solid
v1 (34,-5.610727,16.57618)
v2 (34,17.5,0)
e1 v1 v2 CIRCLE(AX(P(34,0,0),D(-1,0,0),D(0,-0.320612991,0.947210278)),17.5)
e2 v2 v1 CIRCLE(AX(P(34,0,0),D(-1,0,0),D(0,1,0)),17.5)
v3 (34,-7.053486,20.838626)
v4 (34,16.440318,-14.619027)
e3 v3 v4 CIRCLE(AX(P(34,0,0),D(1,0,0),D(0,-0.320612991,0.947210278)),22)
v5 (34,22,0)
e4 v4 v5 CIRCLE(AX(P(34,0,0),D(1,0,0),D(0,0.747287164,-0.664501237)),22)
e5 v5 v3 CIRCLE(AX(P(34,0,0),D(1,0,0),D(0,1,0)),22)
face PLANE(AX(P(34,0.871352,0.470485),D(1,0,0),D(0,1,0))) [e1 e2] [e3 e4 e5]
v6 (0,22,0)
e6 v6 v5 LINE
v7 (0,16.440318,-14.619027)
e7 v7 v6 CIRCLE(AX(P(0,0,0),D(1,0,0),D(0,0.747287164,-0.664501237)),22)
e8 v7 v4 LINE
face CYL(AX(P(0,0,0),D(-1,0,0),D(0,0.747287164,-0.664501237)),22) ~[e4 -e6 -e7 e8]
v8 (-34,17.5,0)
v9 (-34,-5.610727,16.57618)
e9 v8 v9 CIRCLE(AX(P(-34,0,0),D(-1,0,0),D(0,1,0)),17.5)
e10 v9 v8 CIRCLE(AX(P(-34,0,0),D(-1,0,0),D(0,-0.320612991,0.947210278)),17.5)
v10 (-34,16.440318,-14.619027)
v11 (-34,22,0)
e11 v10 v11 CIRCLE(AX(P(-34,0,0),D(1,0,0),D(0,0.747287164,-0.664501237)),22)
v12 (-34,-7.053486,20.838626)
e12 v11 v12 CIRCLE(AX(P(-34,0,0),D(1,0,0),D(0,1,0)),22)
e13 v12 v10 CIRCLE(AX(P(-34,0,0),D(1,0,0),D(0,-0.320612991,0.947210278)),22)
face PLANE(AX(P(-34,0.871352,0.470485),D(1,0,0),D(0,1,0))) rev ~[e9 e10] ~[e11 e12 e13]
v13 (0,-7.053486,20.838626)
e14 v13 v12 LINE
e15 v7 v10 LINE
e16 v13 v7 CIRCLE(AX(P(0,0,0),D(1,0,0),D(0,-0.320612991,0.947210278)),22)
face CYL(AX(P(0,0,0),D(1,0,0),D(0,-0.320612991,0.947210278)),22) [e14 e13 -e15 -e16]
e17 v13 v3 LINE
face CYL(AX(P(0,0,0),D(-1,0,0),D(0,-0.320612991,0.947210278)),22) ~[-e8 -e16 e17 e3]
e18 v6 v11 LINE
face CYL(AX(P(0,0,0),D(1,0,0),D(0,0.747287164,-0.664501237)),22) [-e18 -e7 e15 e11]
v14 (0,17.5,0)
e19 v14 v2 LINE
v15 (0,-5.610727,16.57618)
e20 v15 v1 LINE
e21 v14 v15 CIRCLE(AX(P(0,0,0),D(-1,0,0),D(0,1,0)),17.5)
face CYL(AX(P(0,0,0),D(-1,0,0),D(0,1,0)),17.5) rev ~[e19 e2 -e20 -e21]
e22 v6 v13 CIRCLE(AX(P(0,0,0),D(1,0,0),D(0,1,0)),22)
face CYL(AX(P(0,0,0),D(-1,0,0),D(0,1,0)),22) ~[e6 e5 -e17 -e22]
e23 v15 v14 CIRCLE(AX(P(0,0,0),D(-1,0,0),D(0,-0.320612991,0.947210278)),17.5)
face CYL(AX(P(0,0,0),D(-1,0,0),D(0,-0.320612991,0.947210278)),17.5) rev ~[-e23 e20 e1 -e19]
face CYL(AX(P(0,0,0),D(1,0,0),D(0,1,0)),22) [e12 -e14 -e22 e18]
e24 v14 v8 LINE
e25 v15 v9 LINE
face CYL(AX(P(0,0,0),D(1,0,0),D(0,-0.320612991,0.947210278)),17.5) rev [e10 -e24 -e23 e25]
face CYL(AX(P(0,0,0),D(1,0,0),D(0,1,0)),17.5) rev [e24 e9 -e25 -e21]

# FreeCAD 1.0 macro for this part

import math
import FreeCAD as App
import Part
import Sketcher

V = App.Vector

doc = App.newDocument("Part")
body = doc.addObject("PartDesign::Body", "Body")

sketch1 = doc.addObject("Sketcher::SketchObject", "Sketch")
body.addObject(sketch1)
sketch1.AttachmentSupport = (doc.YZ_Plane, [""])
sketch1.MapMode = "FlatFace"
sketch1.addGeometry(Part.ArcOfCircle(Part.Circle(V(0, 0, 0), V(0, 0, 1), 22), math.radians(0), math.radians(109)), False)
sketch1.addGeometry(Part.ArcOfCircle(Part.Circle(V(0, 0, 0), V(0, 0, 1), 22), math.radians(109), math.radians(318)), False)
sketch1.addGeometry(Part.ArcOfCircle(Part.Circle(V(0, 0, 0), V(0, 0, 1), 22), math.radians(-42), math.radians(0)), False)
sketch1.addGeometry(Part.ArcOfCircle(Part.Circle(V(0, 0, 0), V(0, 0, 1), 18), math.radians(109), math.radians(360)), False)
sketch1.addGeometry(Part.ArcOfCircle(Part.Circle(V(0, 0, 0), V(0, 0, 1), 18), math.radians(0), math.radians(109)), False)
sketch1.addConstraint(Sketcher.Constraint("Tangent", 0, 2, 1, 1))
sketch1.addConstraint(Sketcher.Constraint("Tangent", 1, 2, 2, 1))
sketch1.addConstraint(Sketcher.Constraint("Tangent", 2, 2, 0, 1))
sketch1.addConstraint(Sketcher.Constraint("Tangent", 3, 1, 4, 2))
sketch1.addConstraint(Sketcher.Constraint("Coincident", 4, 1, 3, 2))
sketch1.addConstraint(Sketcher.Constraint("Coincident", 0, 3, -1, 1))
sketch1.addConstraint(Sketcher.Constraint("Coincident", 3, 3, -1, 1))
sketch1.addConstraint(Sketcher.Constraint("PointOnObject", 2, 2, -1))
sketch1.addConstraint(Sketcher.Constraint("PointOnObject", 4, 1, -1))
sketch1.addConstraint(Sketcher.Constraint("Radius", 0, 22.0))
sketch1.addConstraint(Sketcher.Constraint("Radius", 3, 17.5))
sketch1.addConstraint(Sketcher.Constraint("DistanceY", -1, 1, 3, 1, 16.57618))
sketch1.addConstraint(Sketcher.Constraint("DistanceX", 0, 2, 3, 1, 1.442758))
sketch1.addConstraint(Sketcher.Constraint("DistanceX", -1, 1, 1, 2, 16.440318))
pad1 = doc.addObject("PartDesign::Pad", "Pad")
body.addObject(pad1)
pad1.Profile = sketch1
pad1.Type = "TwoLengths"
pad1.Length = 34
pad1.Length2 = 34

doc.recompute()
